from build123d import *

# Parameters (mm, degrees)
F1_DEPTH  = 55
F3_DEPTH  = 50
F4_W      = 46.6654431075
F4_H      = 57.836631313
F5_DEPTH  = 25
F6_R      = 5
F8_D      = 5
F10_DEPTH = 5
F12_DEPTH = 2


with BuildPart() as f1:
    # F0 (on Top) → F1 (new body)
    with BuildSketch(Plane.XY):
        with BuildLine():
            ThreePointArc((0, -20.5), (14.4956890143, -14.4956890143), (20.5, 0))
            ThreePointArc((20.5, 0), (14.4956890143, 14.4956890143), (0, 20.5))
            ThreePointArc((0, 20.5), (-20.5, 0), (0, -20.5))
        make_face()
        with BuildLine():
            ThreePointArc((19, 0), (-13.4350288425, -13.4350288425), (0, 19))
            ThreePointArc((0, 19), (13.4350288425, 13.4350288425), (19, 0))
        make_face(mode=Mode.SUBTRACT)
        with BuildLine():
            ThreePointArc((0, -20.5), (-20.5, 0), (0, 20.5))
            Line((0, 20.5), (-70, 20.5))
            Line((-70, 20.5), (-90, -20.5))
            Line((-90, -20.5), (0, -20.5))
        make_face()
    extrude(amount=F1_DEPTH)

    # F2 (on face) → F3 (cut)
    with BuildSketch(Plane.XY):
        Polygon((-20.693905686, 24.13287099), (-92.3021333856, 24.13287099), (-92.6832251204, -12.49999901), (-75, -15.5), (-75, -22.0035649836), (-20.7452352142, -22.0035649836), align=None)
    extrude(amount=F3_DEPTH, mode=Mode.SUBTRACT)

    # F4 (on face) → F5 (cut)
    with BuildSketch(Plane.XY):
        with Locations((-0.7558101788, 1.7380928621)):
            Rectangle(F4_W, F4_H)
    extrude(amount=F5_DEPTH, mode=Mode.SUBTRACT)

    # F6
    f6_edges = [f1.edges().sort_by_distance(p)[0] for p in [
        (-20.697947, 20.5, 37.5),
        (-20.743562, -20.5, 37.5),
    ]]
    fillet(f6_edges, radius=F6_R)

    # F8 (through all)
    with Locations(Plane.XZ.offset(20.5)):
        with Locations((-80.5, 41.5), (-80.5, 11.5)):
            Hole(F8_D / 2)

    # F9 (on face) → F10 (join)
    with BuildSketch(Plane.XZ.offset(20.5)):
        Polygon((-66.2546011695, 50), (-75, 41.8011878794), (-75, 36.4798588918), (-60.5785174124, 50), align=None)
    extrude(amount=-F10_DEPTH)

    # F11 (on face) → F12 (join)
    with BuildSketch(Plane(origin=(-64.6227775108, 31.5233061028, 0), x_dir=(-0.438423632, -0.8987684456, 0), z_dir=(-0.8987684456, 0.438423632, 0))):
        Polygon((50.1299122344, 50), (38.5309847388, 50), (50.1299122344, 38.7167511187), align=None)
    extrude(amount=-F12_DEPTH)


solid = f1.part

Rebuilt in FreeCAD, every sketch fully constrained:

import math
import FreeCAD as App
import Part
import Sketcher
from FreeCAD import Vector


def edges_at(feature, points):
    """Names of the edges that pass closest to the given points."""
    edges = feature.Shape.Edges
    near = lambda p: min(range(len(edges)), key=lambda i: edges[i].distToShape(Part.Vertex(*p))[0])
    return sorted({f"Edge{near(p) + 1}" for p in points})

doc = App.newDocument("Part")
body = doc.addObject("PartDesign::Body", "Body")

# Sketch on XY plane
sketch1 = doc.addObject("Sketcher::SketchObject", "Sketch")
body.addObject(sketch1)
sketch1.AttachmentSupport = (doc.XY_Plane, [""])
sketch1.MapMode = "FlatFace"
sketch1.addGeometry([
    Part.ArcOfCircle(Part.Circle(Vector(0, 0, 0), Vector(0, 0, 1), 20), math.radians(-90), math.radians(0)),  # 0
    Part.ArcOfCircle(Part.Circle(Vector(0, 0, 0), Vector(0, 0, 1), 20), math.radians(0), math.radians(90)),  # 1
    Part.LineSegment(Vector(0, 20, 0), Vector(-70, 20, 0)),  # 2
    Part.LineSegment(Vector(-70, 20, 0), Vector(-90, -20, 0)),  # 3
    Part.LineSegment(Vector(-90, -20, 0), Vector(0, -20, 0)),  # 4
    Part.ArcOfCircle(Part.Circle(Vector(0, 0, 0), Vector(0, 0, 1), 19), math.radians(0), math.radians(90)),  # 5
    Part.ArcOfCircle(Part.Circle(Vector(0, 0, 0), Vector(0, 0, 1), 19), math.radians(90), math.radians(360)),  # 6
], False)
sketch1.addConstraint([
    Sketcher.Constraint("Tangent", 0, 2, 1, 1),
    Sketcher.Constraint("Tangent", 1, 2, 2, 1),
    Sketcher.Constraint("Coincident", 2, 2, 3, 1),
    Sketcher.Constraint("Coincident", 3, 2, 4, 1),
    Sketcher.Constraint("Tangent", 4, 2, 0, 1),
    Sketcher.Constraint("Tangent", 5, 1, 6, 2),
    Sketcher.Constraint("Coincident", 6, 1, 5, 2),
    Sketcher.Constraint("Horizontal", 2),
    Sketcher.Constraint("Horizontal", 4),
    Sketcher.Constraint("Coincident", 0, 3, -1, 1),
    Sketcher.Constraint("Coincident", 5, 3, -1, 1),
    Sketcher.Constraint("Equal", 0, 1),
    Sketcher.Constraint("PointOnObject", 0, 2, -1),
    Sketcher.Constraint("PointOnObject", 5, 1, -1),
    Sketcher.Constraint("PointOnObject", 6, 1, -2),
    Sketcher.Constraint("Radius", 5, 19.0),
    Sketcher.Constraint("Radius", 0, 20.5),
    Sketcher.Constraint("DistanceX", 2, 2, 2, 1, 70.0),
    Sketcher.Constraint("DistanceX", 4, 1, 4, 2, 90.0),
])
pad1 = doc.addObject("PartDesign::Pad", "Pad")
body.addObject(pad1)
pad1.Profile = sketch1
pad1.Length = 55

# Sketch on XY plane
sketch2 = doc.addObject("Sketcher::SketchObject", "Sketch001")
body.addObject(sketch2)
sketch2.AttachmentSupport = (doc.XY_Plane, [""])
sketch2.MapMode = "FlatFace"
sketch2.addGeometry([
    Part.LineSegment(Vector(-21, 24, 0), Vector(-92, 24, 0)),  # 0
    Part.LineSegment(Vector(-92, 24, 0), Vector(-93, -12, 0)),  # 1
    Part.LineSegment(Vector(-93, -12, 0), Vector(-75, -16, 0)),  # 2
    Part.LineSegment(Vector(-75, -16, 0), Vector(-75, -22, 0)),  # 3
    Part.LineSegment(Vector(-75, -22, 0), Vector(-21, -22, 0)),  # 4
    Part.LineSegment(Vector(-21, -22, 0), Vector(-21, 24, 0)),  # 5
], False)
sketch2.addConstraint([
    Sketcher.Constraint("Coincident", 0, 2, 1, 1),
    Sketcher.Constraint("Coincident", 1, 2, 2, 1),
    Sketcher.Constraint("Coincident", 2, 2, 3, 1),
    Sketcher.Constraint("Coincident", 3, 2, 4, 1),
    Sketcher.Constraint("Coincident", 4, 2, 5, 1),
    Sketcher.Constraint("Coincident", 5, 2, 0, 1),
    Sketcher.Constraint("Horizontal", 0),
    Sketcher.Constraint("Vertical", 3),
    Sketcher.Constraint("Horizontal", 4),
    Sketcher.Constraint("DistanceX", 2, 2, -1, 1, 75.0),
    Sketcher.Constraint("DistanceY", 2, 2, 1, 2, 3.000001),
    Sketcher.Constraint("DistanceY", 1, 2, -1, 1, 12.499999),
    Sketcher.Constraint("Distance", 2, 17.935899),
    Sketcher.Constraint("DistanceX", 0, 2, 4, 2, 71.556898),
    Sketcher.Constraint("DistanceX", 0, 2, 0, 1, 71.608228),
    Sketcher.Constraint("DistanceX", 4, 1, 4, 2, 54.254765),
    Sketcher.Constraint("DistanceY", 3, 2, 3, 1, 6.503565),
    Sketcher.Constraint("DistanceY", -1, 1, 0, 2, 24.132871),
])
pocket1 = doc.addObject("PartDesign::Pocket", "Pocket")
body.addObject(pocket1)
pocket1.Profile = sketch2
pocket1.Length = 50
pocket1.Reversed = True

# Sketch on XY plane
sketch3 = doc.addObject("Sketcher::SketchObject", "Sketch002")
body.addObject(sketch3)
sketch3.AttachmentSupport = (doc.XY_Plane, [""])
sketch3.MapMode = "FlatFace"
sketch3.addGeometry([
    Part.LineSegment(Vector(-24, 31, 0), Vector(-24, -27, 0)),
    Part.LineSegment(Vector(-24, -27, 0), Vector(23, -27, 0)),
    Part.LineSegment(Vector(23, -27, 0), Vector(23, 31, 0)),
    Part.LineSegment(Vector(23, 31, 0), Vector(-24, 31, 0)),
], False)
sketch3.addConstraint([
    Sketcher.Constraint("Coincident", 0, 2, 1, 1),
    Sketcher.Constraint("Coincident", 1, 2, 2, 1),
    Sketcher.Constraint("Coincident", 2, 2, 3, 1),
    Sketcher.Constraint("Coincident", 3, 2, 0, 1),
    Sketcher.Constraint("Vertical", 0),
    Sketcher.Constraint("Horizontal", 1),
    Sketcher.Constraint("Vertical", 2),
    Sketcher.Constraint("Horizontal", 3),
    Sketcher.Constraint("DistanceY", 0, 2, 0, 1, 57.836631),
    Sketcher.Constraint("DistanceX", 1, 1, 1, 2, 46.665443),
    Sketcher.Constraint("DistanceX", 0, 2, -1, 1, 24.088532),
    Sketcher.Constraint("DistanceY", -1, 1, 2, 2, 30.656409),
])
pocket2 = doc.addObject("PartDesign::Pocket", "Pocket001")
body.addObject(pocket2)
pocket2.Profile = sketch3
pocket2.Length = 25
pocket2.Reversed = True
doc.recompute()

fillet = doc.addObject("PartDesign::Fillet", "Fillet")
body.addObject(fillet)
fillet.Base = (pocket2, edges_at(pocket2, [(-20.698, 20.5, 37.5), (-20.744, -20.5, 37.5)]))
fillet.Radius = 5

# Sketch on XZ plane
sketch4 = doc.addObject("Sketcher::SketchObject", "Sketch003")
body.addObject(sketch4)
sketch4.AttachmentSupport = (doc.XZ_Plane, [""])
sketch4.MapMode = "FlatFace"
sketch4.AttachmentOffset = App.Placement(Vector(0, 0, 20.5), App.Rotation())
sketch4.addGeometry([
    Part.Circle(Vector(-80.5, 41.5, 0), Vector(0, 0, 1), 2.5),
    Part.Circle(Vector(-80.5, 11.5, 0), Vector(0, 0, 1), 2.5),
], False)
sketch4.addConstraint([
    Sketcher.Constraint("Equal", 0, 1),
    Sketcher.Constraint("Vertical", 0, 3, 1, 3),
    Sketcher.Constraint("Diameter", 0, 5.0),
    Sketcher.Constraint("DistanceY", 1, 3, 0, 3, 30.0),
    Sketcher.Constraint("DistanceX", 0, 3, -1, 1, 80.5),
    Sketcher.Constraint("DistanceY", -1, 1, 0, 3, 41.5),
])
doc.recompute()
hole = doc.addObject("PartDesign::Hole", "Hole")
body.addObject(hole)
hole.Profile = sketch4
hole.ThreadType = "None"
hole.Diameter = 5
hole.DepthType = "ThroughAll"

# Sketch on XZ plane
sketch5 = doc.addObject("Sketcher::SketchObject", "Sketch004")
body.addObject(sketch5)
sketch5.AttachmentSupport = (doc.XZ_Plane, [""])
sketch5.MapMode = "FlatFace"
sketch5.AttachmentOffset = App.Placement(Vector(0, 0, 20.5), App.Rotation())
sketch5.addGeometry([
    Part.LineSegment(Vector(-66, 50, 0), Vector(-75, 42, 0)),
    Part.LineSegment(Vector(-75, 42, 0), Vector(-75, 36, 0)),
    Part.LineSegment(Vector(-75, 36, 0), Vector(-61, 50, 0)),
    Part.LineSegment(Vector(-61, 50, 0), Vector(-66, 50, 0)),
], False)
sketch5.addConstraint([
    Sketcher.Constraint("Coincident", 0, 2, 1, 1),
    Sketcher.Constraint("Coincident", 1, 2, 2, 1),
    Sketcher.Constraint("Coincident", 2, 2, 3, 1),
    Sketcher.Constraint("Coincident", 3, 2, 0, 1),
    Sketcher.Constraint("Vertical", 1),
    Sketcher.Constraint("Horizontal", 3),
    Sketcher.Constraint("Parallel", 0, 2),
    Sketcher.Constraint("DistanceX", 0, 2, -1, 1, 75.0),
    Sketcher.Constraint("DistanceY", -1, 1, 2, 2, 50.0),
    Sketcher.Constraint("Distance", 0, 11.987599),
    Sketcher.Constraint("DistanceY", 1, 2, 1, 1, 5.321329),
    Sketcher.Constraint("DistanceX", 3, 2, -1, 1, 66.254601),
])
pad2 = doc.addObject("PartDesign::Pad", "Pad001")
body.addObject(pad2)
pad2.Profile = sketch5
pad2.Length = 5
pad2.Reversed = True

# Sketch on an angled plane
sketch6 = doc.addObject("Sketcher::SketchObject", "Sketch005")
body.addObject(sketch6)
sketch6.Placement = App.Placement(Vector(-64.622778, 31.523306, 0), App.Rotation(Vector(-0.438423632, -0.898768446, 0), Vector(0, 0, 1.000000001), Vector(-0.898768446, 0.438423632, 0), "ZXY"))
sketch6.addGeometry([
    Part.LineSegment(Vector(50, 50, 0), Vector(39, 50, 0)),
    Part.LineSegment(Vector(39, 50, 0), Vector(50, 39, 0)),
    Part.LineSegment(Vector(50, 39, 0), Vector(50, 50, 0)),
], False)
sketch6.addConstraint([
    Sketcher.Constraint("Coincident", 0, 2, 1, 1),
    Sketcher.Constraint("Coincident", 1, 2, 2, 1),
    Sketcher.Constraint("Coincident", 2, 2, 0, 1),
    Sketcher.Constraint("Horizontal", 0),
    Sketcher.Constraint("Vertical", 2),
    Sketcher.Constraint("DistanceY", -1, 1, 0, 2, 50.0),
    Sketcher.Constraint("DistanceY", 2, 1, 2, 2, 11.283249),
    Sketcher.Constraint("Distance", 1, 16.181682),
    Sketcher.Constraint("DistanceX", -1, 1, 0, 2, 38.530985),
])
pad3 = doc.addObject("PartDesign::Pad", "Pad002")
body.addObject(pad3)
pad3.Profile = sketch6
pad3.Length = 2
pad3.Reversed = True

doc.recompute()
